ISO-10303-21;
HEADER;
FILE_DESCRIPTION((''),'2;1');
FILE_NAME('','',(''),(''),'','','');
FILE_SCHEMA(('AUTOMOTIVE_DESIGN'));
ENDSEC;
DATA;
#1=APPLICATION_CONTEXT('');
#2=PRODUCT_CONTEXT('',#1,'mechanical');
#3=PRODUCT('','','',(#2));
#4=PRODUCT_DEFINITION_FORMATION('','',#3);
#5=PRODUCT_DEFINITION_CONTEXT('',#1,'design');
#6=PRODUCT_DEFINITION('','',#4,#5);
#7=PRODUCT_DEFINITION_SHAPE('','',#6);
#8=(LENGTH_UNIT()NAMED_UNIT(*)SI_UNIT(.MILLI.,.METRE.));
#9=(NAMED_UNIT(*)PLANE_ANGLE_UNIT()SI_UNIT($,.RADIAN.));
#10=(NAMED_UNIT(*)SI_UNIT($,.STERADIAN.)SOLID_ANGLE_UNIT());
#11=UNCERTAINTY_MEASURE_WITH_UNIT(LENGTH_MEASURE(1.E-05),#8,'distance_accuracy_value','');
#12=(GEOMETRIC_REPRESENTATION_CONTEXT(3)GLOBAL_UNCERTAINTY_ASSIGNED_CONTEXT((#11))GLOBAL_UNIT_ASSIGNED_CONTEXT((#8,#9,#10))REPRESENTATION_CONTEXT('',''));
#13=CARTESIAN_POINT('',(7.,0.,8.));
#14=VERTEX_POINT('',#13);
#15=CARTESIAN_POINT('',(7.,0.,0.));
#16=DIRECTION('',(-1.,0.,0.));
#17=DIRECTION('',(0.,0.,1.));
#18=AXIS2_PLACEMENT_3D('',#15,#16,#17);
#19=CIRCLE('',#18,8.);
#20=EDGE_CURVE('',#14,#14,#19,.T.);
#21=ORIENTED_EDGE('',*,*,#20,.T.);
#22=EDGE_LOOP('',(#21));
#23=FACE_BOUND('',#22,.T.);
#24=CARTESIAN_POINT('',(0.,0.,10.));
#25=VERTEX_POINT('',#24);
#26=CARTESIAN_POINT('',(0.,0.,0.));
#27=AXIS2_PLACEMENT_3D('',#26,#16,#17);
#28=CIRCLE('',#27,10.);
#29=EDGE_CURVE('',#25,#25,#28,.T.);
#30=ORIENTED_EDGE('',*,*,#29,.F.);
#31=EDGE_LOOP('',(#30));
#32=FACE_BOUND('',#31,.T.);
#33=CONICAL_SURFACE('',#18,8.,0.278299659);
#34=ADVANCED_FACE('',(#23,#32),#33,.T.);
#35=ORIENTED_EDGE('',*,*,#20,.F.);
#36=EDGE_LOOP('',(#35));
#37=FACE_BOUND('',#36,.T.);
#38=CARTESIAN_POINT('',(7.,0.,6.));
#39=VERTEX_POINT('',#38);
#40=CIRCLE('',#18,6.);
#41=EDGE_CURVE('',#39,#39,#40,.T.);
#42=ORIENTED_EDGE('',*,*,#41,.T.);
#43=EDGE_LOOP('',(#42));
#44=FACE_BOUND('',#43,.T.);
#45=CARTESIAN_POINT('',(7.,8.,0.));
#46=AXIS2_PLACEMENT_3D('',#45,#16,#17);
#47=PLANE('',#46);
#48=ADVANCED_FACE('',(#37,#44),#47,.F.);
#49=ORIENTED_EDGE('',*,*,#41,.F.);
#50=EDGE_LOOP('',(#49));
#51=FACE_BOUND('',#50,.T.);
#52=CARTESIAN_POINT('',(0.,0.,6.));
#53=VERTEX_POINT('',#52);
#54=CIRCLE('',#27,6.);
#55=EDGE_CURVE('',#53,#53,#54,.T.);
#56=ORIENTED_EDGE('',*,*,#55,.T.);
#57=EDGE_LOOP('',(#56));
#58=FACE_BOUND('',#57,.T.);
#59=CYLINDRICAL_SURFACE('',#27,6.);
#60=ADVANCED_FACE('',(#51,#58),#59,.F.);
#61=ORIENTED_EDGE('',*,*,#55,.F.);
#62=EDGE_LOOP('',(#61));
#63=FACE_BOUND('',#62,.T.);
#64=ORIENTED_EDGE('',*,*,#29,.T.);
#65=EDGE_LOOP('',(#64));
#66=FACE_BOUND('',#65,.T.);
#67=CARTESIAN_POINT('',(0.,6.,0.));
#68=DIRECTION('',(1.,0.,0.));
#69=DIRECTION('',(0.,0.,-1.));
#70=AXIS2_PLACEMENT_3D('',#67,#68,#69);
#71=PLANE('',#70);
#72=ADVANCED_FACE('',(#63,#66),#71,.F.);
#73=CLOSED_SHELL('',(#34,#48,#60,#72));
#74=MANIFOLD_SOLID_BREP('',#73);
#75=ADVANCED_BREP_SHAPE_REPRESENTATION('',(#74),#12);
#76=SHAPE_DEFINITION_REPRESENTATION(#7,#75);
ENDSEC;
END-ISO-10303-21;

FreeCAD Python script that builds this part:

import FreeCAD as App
import Part
import Sketcher

V = App.Vector
Q = App.Units.Quantity


def add_polygon(sketch, points):
    """Adds a closed chain of lines whose ends are joined by coincident constraints."""
    first, n = sketch.GeometryCount, len(points)
    for a, b in zip(points, points[1:] + points[:1]):
        sketch.addGeometry(Part.LineSegment(App.Vector(*a, 0), App.Vector(*b, 0)), False)
    for i in range(n):
        sketch.addConstraint(Sketcher.Constraint("Coincident", first + i, 2, first + (i + 1) % n, 1))

doc = App.newDocument("Part")
params = doc.addObject("Spreadsheet::Sheet", "Params")
for row, (alias, value) in enumerate([
    ("sketch1_width", "7 mm"),
    ("sketch1_height", "4 mm"),
    ("sketch1_height2", "2 mm"),
    ("revolution_angle", "360 deg"),
], start=1):
    params.set(f"A{row}", alias)
    params.set(f"B{row}", "=" + value)
    params.setAlias(f"B{row}", alias)

body = doc.addObject("PartDesign::Body", "Body")

# Sketch on XY plane
sketch1 = doc.addObject("Sketcher::SketchObject", "Sketch")
body.addObject(sketch1)
sketch1.AttachmentSupport = (doc.XY_Plane, [""])
sketch1.MapMode = "FlatFace"
add_polygon(sketch1, [(0, 10), (0, 6), (7, 6), (7, 8)])  # lines 0-3
sketch1.addConstraint(Sketcher.Constraint("Vertical", 0))
sketch1.addConstraint(Sketcher.Constraint("Horizontal", 1))
sketch1.addConstraint(Sketcher.Constraint("Vertical", 2))
sketch1.addConstraint(Sketcher.Constraint("PointOnObject", 0, 2, -2))
sketch1.addConstraint(Sketcher.Constraint("DistanceX", 1, 1, 1, 2, Q("7 mm")))
sketch1.addConstraint(Sketcher.Constraint("DistanceY", 0, 2, 0, 1, Q("4 mm")))
sketch1.addConstraint(Sketcher.Constraint("DistanceY", 2, 1, 2, 2, Q("2 mm")))
sketch1.addConstraint(Sketcher.Constraint("DistanceY", -1, 1, 0, 2, Q("6 mm")))
sketch1.setExpression("Constraints[8]", "Params.sketch1_width")
sketch1.setExpression("Constraints[9]", "Params.sketch1_height")
sketch1.setExpression("Constraints[10]", "Params.sketch1_height2")
revolution = doc.addObject("PartDesign::Revolution", "Revolution")
body.addObject(revolution)
revolution.Profile = sketch1
revolution.ReferenceAxis = (sketch1, ["H_Axis"])
revolution.setExpression("Angle", "Params.revolution_angle")

doc.recompute()
